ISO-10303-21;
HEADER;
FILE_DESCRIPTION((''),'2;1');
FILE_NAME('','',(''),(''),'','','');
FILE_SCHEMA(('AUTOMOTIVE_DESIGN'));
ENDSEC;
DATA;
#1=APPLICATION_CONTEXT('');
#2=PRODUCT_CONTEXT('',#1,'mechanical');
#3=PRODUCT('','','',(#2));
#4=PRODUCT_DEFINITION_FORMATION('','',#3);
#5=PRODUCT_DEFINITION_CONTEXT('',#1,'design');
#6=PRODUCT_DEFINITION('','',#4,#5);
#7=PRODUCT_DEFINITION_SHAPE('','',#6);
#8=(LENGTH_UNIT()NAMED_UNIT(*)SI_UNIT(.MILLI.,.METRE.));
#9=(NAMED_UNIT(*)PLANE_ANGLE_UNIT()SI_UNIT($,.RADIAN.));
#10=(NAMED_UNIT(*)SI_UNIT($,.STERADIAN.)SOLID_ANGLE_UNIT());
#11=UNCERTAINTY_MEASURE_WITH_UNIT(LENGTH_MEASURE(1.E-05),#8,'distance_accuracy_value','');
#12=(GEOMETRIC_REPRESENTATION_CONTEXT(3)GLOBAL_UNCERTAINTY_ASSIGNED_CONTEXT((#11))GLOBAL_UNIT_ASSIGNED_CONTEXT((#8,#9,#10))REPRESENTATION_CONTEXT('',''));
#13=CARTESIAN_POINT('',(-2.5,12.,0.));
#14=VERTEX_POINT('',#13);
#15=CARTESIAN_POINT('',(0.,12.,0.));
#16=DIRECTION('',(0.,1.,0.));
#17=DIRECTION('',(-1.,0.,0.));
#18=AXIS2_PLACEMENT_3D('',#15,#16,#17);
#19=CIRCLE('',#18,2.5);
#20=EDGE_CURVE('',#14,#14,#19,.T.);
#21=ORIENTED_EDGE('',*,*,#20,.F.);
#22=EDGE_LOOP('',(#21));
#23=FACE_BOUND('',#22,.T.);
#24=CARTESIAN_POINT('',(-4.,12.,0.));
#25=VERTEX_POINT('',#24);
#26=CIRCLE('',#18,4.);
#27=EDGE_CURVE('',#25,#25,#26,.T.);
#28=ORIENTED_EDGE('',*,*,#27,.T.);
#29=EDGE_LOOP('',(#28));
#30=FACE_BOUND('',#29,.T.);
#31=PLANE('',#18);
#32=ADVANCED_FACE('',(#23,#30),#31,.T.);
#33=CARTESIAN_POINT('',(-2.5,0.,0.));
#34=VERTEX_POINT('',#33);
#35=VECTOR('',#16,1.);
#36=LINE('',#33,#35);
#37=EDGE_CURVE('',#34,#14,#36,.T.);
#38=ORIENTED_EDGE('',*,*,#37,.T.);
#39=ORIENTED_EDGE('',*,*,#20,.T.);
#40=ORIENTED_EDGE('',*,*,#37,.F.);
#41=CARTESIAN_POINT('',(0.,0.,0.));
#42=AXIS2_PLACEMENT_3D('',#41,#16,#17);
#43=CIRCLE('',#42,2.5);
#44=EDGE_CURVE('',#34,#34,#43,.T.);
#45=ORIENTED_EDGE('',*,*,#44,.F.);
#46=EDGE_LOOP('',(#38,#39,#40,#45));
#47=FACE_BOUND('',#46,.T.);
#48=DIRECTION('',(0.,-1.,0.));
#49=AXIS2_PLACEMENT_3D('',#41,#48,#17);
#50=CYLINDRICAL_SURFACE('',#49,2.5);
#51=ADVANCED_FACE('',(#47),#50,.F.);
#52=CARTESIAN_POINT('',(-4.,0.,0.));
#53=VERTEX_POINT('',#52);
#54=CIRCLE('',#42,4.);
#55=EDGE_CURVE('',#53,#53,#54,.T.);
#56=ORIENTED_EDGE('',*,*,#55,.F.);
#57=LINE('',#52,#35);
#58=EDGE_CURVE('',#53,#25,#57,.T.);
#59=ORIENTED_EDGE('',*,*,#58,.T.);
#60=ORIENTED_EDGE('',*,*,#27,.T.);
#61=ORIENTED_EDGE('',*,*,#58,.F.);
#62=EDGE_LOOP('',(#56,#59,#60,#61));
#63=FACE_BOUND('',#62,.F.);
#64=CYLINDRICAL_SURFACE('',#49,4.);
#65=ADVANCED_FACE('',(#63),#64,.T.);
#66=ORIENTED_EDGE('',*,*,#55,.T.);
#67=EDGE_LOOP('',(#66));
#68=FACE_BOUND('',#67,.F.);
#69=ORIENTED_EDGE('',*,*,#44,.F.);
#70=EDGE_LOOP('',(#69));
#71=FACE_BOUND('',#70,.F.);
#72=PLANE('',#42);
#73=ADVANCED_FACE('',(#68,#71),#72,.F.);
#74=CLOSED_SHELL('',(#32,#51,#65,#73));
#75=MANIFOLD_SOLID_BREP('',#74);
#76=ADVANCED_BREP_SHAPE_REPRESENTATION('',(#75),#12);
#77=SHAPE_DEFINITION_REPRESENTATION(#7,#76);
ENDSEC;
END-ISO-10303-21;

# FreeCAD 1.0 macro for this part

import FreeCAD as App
import Part
import Sketcher

doc = App.newDocument("Part")
params = doc.addObject("Spreadsheet::Sheet", "Params")
for row, (alias, value) in enumerate([
    ("sketch1_diameter", "8 mm"),
    ("sketch1_diameter2", "5 mm"),
    ("pad1_length", "12 mm"),
], start=1):
    params.set(f"A{row}", alias)
    params.set(f"B{row}", "=" + value)
    params.setAlias(f"B{row}", alias)

body = doc.addObject("PartDesign::Body", "Body")

# Sketch on XZ plane
sketch1 = body.newObject("Sketcher::SketchObject", "Sketch")
sketch1.AttachmentSupport = (doc.getObject("XZ_Plane"), [""])
sketch1.MapMode = "FlatFace"
sketch1.addGeometry([
    Part.Circle(App.Vector(0, 0, 0), App.Vector(0, 0, 1), 4),
    Part.Circle(App.Vector(0, 0, 0), App.Vector(0, 0, 1), 2.5),
], False)
sketch1.addConstraint([
    Sketcher.Constraint("Coincident", 0, 3, -1, 1),
    Sketcher.Constraint("Coincident", 1, 3, -1, 1),
    Sketcher.Constraint("Diameter", 0, 8.0),
    Sketcher.Constraint("Diameter", 1, 5.0),
])
sketch1.setExpression("Constraints[2]", "Params.sketch1_diameter")
sketch1.setExpression("Constraints[3]", "Params.sketch1_diameter2")
pad1 = body.newObject("PartDesign::Pad", "Pad")
pad1.Profile = sketch1
pad1.setExpression("Length", "Params.pad1_length")
pad1.Reversed = True

doc.recompute()
